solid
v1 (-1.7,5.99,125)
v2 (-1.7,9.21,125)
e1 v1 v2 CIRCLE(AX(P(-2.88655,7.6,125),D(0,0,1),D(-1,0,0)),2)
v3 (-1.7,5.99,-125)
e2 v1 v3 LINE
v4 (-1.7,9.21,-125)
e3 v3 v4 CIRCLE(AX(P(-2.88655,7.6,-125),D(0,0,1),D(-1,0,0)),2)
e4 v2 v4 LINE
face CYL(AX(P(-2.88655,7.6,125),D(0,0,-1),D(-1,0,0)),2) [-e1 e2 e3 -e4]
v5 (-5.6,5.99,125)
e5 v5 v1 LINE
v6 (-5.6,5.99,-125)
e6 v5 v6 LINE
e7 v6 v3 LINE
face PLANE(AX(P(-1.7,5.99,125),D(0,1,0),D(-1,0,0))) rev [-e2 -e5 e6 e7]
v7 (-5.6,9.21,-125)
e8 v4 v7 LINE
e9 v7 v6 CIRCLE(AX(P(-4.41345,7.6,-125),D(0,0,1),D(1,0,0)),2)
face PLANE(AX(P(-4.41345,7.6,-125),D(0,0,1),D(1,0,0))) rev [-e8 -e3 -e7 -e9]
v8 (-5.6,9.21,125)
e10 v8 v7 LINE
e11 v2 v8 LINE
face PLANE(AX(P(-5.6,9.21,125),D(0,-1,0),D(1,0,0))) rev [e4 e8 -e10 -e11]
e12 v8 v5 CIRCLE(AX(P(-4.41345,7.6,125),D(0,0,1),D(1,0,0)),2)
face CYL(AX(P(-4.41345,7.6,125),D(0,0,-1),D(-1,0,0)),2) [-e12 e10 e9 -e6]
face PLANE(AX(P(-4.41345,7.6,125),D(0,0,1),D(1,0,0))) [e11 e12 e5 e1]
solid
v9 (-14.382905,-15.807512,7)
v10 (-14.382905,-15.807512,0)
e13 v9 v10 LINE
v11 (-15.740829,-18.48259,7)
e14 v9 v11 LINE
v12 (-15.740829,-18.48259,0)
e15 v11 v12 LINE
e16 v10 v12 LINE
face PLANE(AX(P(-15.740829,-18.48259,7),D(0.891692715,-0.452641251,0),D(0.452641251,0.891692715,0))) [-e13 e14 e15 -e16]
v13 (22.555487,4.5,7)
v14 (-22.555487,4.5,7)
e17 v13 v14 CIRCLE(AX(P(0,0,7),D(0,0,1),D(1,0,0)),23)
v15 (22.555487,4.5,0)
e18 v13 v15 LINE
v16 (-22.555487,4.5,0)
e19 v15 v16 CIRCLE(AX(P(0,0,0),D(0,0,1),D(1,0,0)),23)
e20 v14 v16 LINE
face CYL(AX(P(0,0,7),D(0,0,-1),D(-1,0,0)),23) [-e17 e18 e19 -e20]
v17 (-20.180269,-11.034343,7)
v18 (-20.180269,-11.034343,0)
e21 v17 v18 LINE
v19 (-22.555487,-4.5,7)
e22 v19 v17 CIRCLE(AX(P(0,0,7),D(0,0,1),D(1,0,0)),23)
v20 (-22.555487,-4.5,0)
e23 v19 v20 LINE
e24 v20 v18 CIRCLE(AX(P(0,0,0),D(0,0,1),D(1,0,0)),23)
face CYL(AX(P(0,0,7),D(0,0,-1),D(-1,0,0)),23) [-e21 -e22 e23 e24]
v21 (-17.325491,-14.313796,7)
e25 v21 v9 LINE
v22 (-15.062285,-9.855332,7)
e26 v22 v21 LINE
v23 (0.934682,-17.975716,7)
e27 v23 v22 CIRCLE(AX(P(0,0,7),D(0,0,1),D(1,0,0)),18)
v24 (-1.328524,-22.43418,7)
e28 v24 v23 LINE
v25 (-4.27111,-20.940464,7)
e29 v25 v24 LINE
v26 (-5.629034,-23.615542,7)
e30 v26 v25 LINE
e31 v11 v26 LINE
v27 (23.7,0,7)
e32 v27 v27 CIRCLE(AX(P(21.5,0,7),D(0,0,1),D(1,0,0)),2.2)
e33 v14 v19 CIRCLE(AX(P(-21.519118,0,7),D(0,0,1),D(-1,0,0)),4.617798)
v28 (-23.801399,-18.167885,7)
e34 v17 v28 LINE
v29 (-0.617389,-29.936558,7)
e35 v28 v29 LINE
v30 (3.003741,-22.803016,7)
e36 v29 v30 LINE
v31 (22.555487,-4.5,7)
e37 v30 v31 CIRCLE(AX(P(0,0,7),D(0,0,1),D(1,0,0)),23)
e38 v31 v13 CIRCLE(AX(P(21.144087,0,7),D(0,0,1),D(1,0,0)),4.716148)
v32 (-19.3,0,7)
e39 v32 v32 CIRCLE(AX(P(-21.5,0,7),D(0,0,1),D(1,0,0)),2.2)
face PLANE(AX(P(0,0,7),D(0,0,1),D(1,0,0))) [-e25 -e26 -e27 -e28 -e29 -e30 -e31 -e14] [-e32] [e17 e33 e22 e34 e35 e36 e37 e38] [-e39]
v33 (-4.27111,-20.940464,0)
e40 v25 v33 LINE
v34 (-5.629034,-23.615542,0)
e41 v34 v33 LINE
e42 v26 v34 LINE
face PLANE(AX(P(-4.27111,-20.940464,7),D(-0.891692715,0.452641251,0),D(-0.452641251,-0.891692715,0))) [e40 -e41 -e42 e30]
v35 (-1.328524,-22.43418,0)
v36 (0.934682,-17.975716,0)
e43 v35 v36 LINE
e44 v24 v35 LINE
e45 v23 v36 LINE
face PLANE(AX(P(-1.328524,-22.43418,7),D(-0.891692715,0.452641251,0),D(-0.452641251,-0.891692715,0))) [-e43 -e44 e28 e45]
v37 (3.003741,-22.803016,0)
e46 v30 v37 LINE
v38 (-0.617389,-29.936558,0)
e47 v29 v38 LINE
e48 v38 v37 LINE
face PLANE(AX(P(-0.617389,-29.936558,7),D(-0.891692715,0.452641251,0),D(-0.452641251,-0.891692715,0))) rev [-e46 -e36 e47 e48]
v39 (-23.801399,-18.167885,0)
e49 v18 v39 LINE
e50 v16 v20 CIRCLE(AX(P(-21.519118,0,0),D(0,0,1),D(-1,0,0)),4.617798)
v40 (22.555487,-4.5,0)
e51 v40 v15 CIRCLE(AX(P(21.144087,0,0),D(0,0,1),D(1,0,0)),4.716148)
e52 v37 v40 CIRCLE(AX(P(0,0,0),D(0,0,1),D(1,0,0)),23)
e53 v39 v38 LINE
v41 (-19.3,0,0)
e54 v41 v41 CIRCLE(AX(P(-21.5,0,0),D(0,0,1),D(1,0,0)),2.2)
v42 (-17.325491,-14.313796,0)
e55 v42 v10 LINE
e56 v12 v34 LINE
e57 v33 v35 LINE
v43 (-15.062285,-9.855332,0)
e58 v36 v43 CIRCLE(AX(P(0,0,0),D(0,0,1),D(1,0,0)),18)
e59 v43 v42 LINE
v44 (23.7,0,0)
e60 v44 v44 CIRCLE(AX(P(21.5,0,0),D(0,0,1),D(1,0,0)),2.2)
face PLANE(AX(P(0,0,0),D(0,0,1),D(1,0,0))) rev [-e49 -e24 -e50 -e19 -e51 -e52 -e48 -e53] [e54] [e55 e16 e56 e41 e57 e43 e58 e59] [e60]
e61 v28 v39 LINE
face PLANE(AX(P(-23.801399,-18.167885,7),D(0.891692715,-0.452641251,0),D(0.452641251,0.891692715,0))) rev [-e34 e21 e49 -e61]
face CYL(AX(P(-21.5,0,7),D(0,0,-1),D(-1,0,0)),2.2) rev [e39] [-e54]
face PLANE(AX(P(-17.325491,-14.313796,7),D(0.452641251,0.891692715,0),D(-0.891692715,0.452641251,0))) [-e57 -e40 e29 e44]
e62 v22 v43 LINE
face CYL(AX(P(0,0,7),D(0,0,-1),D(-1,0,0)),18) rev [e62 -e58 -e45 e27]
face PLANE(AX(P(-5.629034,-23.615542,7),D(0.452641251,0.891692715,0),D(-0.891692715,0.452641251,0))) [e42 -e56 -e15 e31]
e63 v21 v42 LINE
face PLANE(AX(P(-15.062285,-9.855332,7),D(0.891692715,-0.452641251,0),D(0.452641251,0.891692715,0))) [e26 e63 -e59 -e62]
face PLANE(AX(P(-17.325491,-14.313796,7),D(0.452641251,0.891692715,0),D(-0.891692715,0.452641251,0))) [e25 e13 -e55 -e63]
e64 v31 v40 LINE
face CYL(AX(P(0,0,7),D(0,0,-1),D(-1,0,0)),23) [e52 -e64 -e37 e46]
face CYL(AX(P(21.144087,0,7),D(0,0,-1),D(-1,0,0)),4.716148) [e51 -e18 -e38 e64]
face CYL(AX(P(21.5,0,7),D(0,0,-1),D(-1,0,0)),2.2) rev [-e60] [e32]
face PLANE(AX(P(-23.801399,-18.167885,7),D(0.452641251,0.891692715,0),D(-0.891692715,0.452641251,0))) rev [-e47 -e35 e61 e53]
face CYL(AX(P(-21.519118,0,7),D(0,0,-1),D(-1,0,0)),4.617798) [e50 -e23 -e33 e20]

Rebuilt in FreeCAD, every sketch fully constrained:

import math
import FreeCAD as App
import Part
import Sketcher
Q = App.Units.Quantity

doc = App.newDocument("Part")
body = doc.addObject("PartDesign::Body", "Body")

# Sketch on XY plane
sketch1 = body.newObject("Sketcher::SketchObject", "Sketch")
sketch1.AttachmentSupport = (doc.getObject("XY_Plane"), [""])
sketch1.MapMode = "FlatFace"
sketch1.addGeometry([
    Part.Circle(App.Vector(0, 0, 0), App.Vector(0, 0, 1), 23),
    Part.Circle(App.Vector(0, 0, 0), App.Vector(0, 0, 1), 18),
], False)
sketch1.addConstraint([
    Sketcher.Constraint("Coincident", 0, 3, -1, 1),
    Sketcher.Constraint("Coincident", 1, 3, -1, 1),
    Sketcher.Constraint("Diameter", 0, Q("46 mm")),
    Sketcher.Constraint("Diameter", 1, Q("36 mm")),
])
pad1 = body.newObject("PartDesign::Pad", "Pad")
pad1.Profile = sketch1
pad1.Length = 7

# Sketch on XY plane
sketch2 = body.newObject("Sketcher::SketchObject", "Sketch001")
sketch2.AttachmentSupport = (doc.getObject("XY_Plane"), [""])
sketch2.MapMode = "FlatFace"
sketch2.addGeometry([
    Part.LineSegment(App.Vector(-24, -18, 0), App.Vector(-1, -30, 0)),
    Part.LineSegment(App.Vector(-1, -30, 0), App.Vector(3, -23, 0)),
    Part.ArcOfCircle(Part.Circle(App.Vector(0, 0, 0), App.Vector(0, 0, 1), 23), math.radians(-151), math.radians(-82)),
    Part.LineSegment(App.Vector(-20, -11, 0), App.Vector(-24, -18, 0)),
], False)
sketch2.addConstraint([
    Sketcher.Constraint("Coincident", 0, 2, 1, 1),
    Sketcher.Constraint("Coincident", 1, 2, 2, 2),
    Sketcher.Constraint("Coincident", 2, 1, 3, 1),
    Sketcher.Constraint("Coincident", 3, 2, 0, 1),
    Sketcher.Constraint("Coincident", 2, 3, -1, 1),
    Sketcher.Constraint("Perpendicular", 0, 1),
    Sketcher.Constraint("Parallel", 1, 3),
    Sketcher.Constraint("Equal", 1, 3),
    Sketcher.Constraint("Radius", 2, Q("23 mm")),
    Sketcher.Constraint("Distance", 0, Q("26 mm")),
    Sketcher.Constraint("Distance", 1, Q("8 mm")),
    Sketcher.Constraint("DistanceX", 3, 2, -1, 1, Q("23.801399 mm")),
])
pad2 = body.newObject("PartDesign::Pad", "Pad001")
pad2.Profile = sketch2
pad2.Length = 7

# Sketch on XY plane
sketch3 = body.newObject("Sketcher::SketchObject", "Sketch002")
sketch3.AttachmentSupport = (doc.getObject("XY_Plane"), [""])
sketch3.MapMode = "FlatFace"
sketch3.addGeometry([
    Part.LineSegment(App.Vector(-15.1, -9.9, 0), App.Vector(-17.3, -14.3, 0)),
    Part.LineSegment(App.Vector(-17.3, -14.3, 0), App.Vector(-1.3, -22.4, 0)),
    Part.LineSegment(App.Vector(-1.3, -22.4, 0), App.Vector(0.9, -18, 0)),
    Part.ArcOfCircle(Part.Circle(App.Vector(0, 0, 0), App.Vector(0, 0, 1), 18), math.radians(-147), math.radians(-87)),
], False)
sketch3.addConstraint([
    Sketcher.Constraint("Coincident", 0, 2, 1, 1),
    Sketcher.Constraint("Coincident", 1, 2, 2, 1),
    Sketcher.Constraint("Coincident", 2, 2, 3, 2),
    Sketcher.Constraint("Coincident", 3, 1, 0, 1),
    Sketcher.Constraint("Coincident", 3, 3, -1, 1),
    Sketcher.Constraint("Perpendicular", 0, 1),
    Sketcher.Constraint("Perpendicular", 1, 2),
    Sketcher.Constraint("Equal", 0, 2),
    Sketcher.Constraint("Radius", 3, Q("18 mm")),
    Sketcher.Constraint("Distance", 0, Q("5 mm")),
    Sketcher.Constraint("Distance", 1, Q("17.94 mm")),
    Sketcher.Constraint("DistanceX", 0, 2, -1, 1, Q("17.325491 mm")),
])
pocket1 = body.newObject("PartDesign::Pocket", "Pocket")
pocket1.Profile = sketch3
pocket1.Length = 7
pocket1.Reversed = True

# Sketch on XY plane
sketch4 = body.newObject("Sketcher::SketchObject", "Sketch003")
sketch4.AttachmentSupport = (doc.getObject("XY_Plane"), [""])
sketch4.MapMode = "FlatFace"
sketch4.addGeometry([
    Part.ArcOfCircle(Part.Circle(App.Vector(-21.5, 0, 0), App.Vector(0, 0, 1), 4.6), math.radians(103), math.radians(257)),
    Part.ArcOfCircle(Part.Circle(App.Vector(0, 0, 0), App.Vector(0, 0, 1), 23), math.radians(169), math.radians(191)),
    Part.ArcOfCircle(Part.Circle(App.Vector(21.1, 0, 0), App.Vector(0, 0, 1), 4.7), math.radians(-73), math.radians(73)),
    Part.ArcOfCircle(Part.Circle(App.Vector(0, 0, 0), App.Vector(0, 0, 1), 23), math.radians(-11), math.radians(11)),
], False)
sketch4.addConstraint([
    Sketcher.Constraint("Coincident", 0, 1, 1, 1),
    Sketcher.Constraint("Coincident", 1, 2, 0, 2),
    Sketcher.Constraint("Coincident", 2, 1, 3, 1),
    Sketcher.Constraint("Coincident", 3, 2, 2, 2),
    Sketcher.Constraint("Coincident", 1, 3, -1, 1),
    Sketcher.Constraint("Coincident", 3, 3, -1, 1),
    Sketcher.Constraint("Equal", 1, 3),
    Sketcher.Constraint("PointOnObject", 0, 3, -1),
    Sketcher.Constraint("PointOnObject", 2, 3, -1),
    Sketcher.Constraint("Horizontal", 1, 2, 2, 1),
    Sketcher.Constraint("Radius", 1, Q("23 mm")),
    Sketcher.Constraint("DistanceY", 1, 2, 0, 1, Q("9 mm")),
    Sketcher.Constraint("Radius", 0, Q("4.617798 mm")),
    Sketcher.Constraint("Radius", 2, Q("4.716148 mm")),
])
pad3 = body.newObject("PartDesign::Pad", "Pad002")
pad3.Profile = sketch4
pad3.Length = 7

# Sketch on XY plane
sketch5 = body.newObject("Sketcher::SketchObject", "Sketch004")
sketch5.AttachmentSupport = (doc.getObject("XY_Plane"), [""])
sketch5.MapMode = "FlatFace"
sketch5.addGeometry([
    Part.Circle(App.Vector(-21.5, 0, 0), App.Vector(0, 0, 1), 2.2),
    Part.Circle(App.Vector(21.5, 0, 0), App.Vector(0, 0, 1), 2.2),
], False)
sketch5.addConstraint([
    Sketcher.Constraint("Equal", 0, 1),
    Sketcher.Constraint("Symmetric", 0, 3, 1, 3, -1, 1),
    Sketcher.Constraint("PointOnObject", 0, 3, -1),
    Sketcher.Constraint("Diameter", 0, Q("4.4 mm")),
    Sketcher.Constraint("DistanceX", 0, 3, 1, 3, Q("43 mm")),
])
pocket2 = body.newObject("PartDesign::Pocket", "Pocket001")
pocket2.Profile = sketch5
pocket2.Length = 7
pocket2.Reversed = True

# Sketch on XY plane
sketch6 = body.newObject("Sketcher::SketchObject", "Sketch005")
sketch6.AttachmentSupport = (doc.getObject("XY_Plane"), [""])
sketch6.MapMode = "FlatFace"
sketch6.addGeometry([
    Part.LineSegment(App.Vector(-4.3, -20.9, 0), App.Vector(-14.4, -15.8, 0)),
    Part.LineSegment(App.Vector(-14.4, -15.8, 0), App.Vector(-15.7, -18.5, 0)),
    Part.LineSegment(App.Vector(-15.7, -18.5, 0), App.Vector(-5.6, -23.6, 0)),
    Part.LineSegment(App.Vector(-5.6, -23.6, 0), App.Vector(-4.3, -20.9, 0)),
], False)
sketch6.addConstraint([
    Sketcher.Constraint("Coincident", 0, 2, 1, 1),
    Sketcher.Constraint("Coincident", 1, 2, 2, 1),
    Sketcher.Constraint("Coincident", 2, 2, 3, 1),
    Sketcher.Constraint("Coincident", 3, 2, 0, 1),
    Sketcher.Constraint("Perpendicular", 0, 1),
    Sketcher.Constraint("Perpendicular", 1, 2),
    Sketcher.Constraint("Perpendicular", 2, 3),
    Sketcher.Constraint("Distance", 1, Q("3 mm")),
    Sketcher.Constraint("Distance", 0, Q("11.34 mm")),
    Sketcher.Constraint("DistanceY", 0, 2, -1, 1, Q("15.807512 mm")),
    Sketcher.Constraint("DistanceX", 1, 2, -1, 1, Q("15.740829 mm")),
    Sketcher.Constraint("DistanceY", 1, 2, -1, 1, Q("18.48259 mm")),
])
pocket3 = body.newObject("PartDesign::Pocket", "Pocket002")
pocket3.Profile = sketch6
pocket3.Length = 7
pocket3.Reversed = True
body2 = doc.addObject("PartDesign::Body", "Body001")

# Sketch on XY plane
sketch7 = body2.newObject("Sketcher::SketchObject", "Sketch006")
sketch7.AttachmentSupport = (doc.getObject("XY_Plane001"), [""])
sketch7.MapMode = "FlatFace"
sketch7.addGeometry([
    Part.LineSegment(App.Vector(-1.7, 9.2, 0), App.Vector(-5.6, 9.2, 0)),
    Part.ArcOfCircle(Part.Circle(App.Vector(-4.4, 7.6, 0), App.Vector(0, 0, 1), 2), math.radians(126), math.radians(234)),
    Part.LineSegment(App.Vector(-5.6, 6, 0), App.Vector(-1.7, 6, 0)),
    Part.ArcOfCircle(Part.Circle(App.Vector(-2.9, 7.6, 0), App.Vector(0, 0, 1), 2), math.radians(-54), math.radians(54)),
], False)
sketch7.addConstraint([
    Sketcher.Constraint("Coincident", 0, 2, 1, 1),
    Sketcher.Constraint("Coincident", 1, 2, 2, 1),
    Sketcher.Constraint("Coincident", 2, 2, 3, 1),
    Sketcher.Constraint("Coincident", 3, 2, 0, 1),
    Sketcher.Constraint("Horizontal", 0),
    Sketcher.Constraint("Horizontal", 2),
    Sketcher.Constraint("Equal", 1, 3),
    Sketcher.Constraint("Horizontal", 1, 3, 3, 3),
    Sketcher.Constraint("Vertical", 0, 2, 1, 2),
    Sketcher.Constraint("Radius", 1, Q("2 mm")),
    Sketcher.Constraint("DistanceX", 0, 2, 0, 1, Q("3.9 mm")),
    Sketcher.Constraint("DistanceY", -1, 1, 1, 3, Q("7.6 mm")),
    Sketcher.Constraint("DistanceX", 0, 2, -1, 1, Q("5.6 mm")),
    Sketcher.Constraint("DistanceY", -1, 1, 0, 2, Q("9.21 mm")),
])
pad4 = body2.newObject("PartDesign::Pad", "Pad003")
pad4.Profile = sketch7
pad4.Length = 250
pad4.Midplane = True

doc.recompute()
